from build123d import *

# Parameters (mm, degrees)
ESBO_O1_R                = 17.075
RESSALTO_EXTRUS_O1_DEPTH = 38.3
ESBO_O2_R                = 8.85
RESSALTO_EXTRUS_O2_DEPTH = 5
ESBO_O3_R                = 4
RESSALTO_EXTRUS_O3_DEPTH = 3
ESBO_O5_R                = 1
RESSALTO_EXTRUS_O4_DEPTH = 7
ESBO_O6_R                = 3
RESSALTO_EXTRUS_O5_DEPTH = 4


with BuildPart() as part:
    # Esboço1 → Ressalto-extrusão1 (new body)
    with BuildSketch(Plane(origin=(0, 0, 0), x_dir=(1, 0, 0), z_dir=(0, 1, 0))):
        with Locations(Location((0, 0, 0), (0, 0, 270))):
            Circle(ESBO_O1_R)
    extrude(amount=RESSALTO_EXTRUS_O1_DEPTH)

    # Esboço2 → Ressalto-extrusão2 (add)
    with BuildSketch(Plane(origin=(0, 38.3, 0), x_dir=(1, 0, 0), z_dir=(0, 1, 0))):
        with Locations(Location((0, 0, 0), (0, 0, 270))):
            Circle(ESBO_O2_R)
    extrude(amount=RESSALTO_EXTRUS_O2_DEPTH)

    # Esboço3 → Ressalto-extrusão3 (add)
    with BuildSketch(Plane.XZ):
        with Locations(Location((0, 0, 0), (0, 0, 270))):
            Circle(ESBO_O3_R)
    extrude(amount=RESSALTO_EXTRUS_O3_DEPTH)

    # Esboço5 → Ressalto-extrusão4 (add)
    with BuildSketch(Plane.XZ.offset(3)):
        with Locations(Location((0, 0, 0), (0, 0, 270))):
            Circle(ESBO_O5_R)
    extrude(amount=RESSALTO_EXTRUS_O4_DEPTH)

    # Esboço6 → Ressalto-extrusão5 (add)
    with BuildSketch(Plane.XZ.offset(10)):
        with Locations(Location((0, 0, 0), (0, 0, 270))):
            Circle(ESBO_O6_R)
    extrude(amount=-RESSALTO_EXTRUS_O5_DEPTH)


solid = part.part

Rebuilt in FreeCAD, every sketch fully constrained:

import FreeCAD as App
import Part
import Sketcher

V = App.Vector

doc = App.newDocument("Part")
body = doc.addObject("PartDesign::Body", "Body")

# Sketch on XZ plane
sketch1 = doc.addObject("Sketcher::SketchObject", "Sketch")
body.addObject(sketch1)
sketch1.AttachmentSupport = (doc.XZ_Plane, [""])
sketch1.MapMode = "FlatFace"
sketch1.addGeometry(Part.Circle(V(0, 0, 0), V(0, 0, 1), 17.075), False)
sketch1.addConstraint(Sketcher.Constraint("Coincident", 0, 3, -1, 1))
sketch1.addConstraint(Sketcher.Constraint("Diameter", 0, 34.15))
pad1 = doc.addObject("PartDesign::Pad", "Pad")
body.addObject(pad1)
pad1.Profile = sketch1
pad1.Length = 38.3
pad1.Reversed = True

# Sketch on XZ plane
sketch2 = doc.addObject("Sketcher::SketchObject", "Sketch001")
body.addObject(sketch2)
sketch2.AttachmentSupport = (doc.XZ_Plane, [""])
sketch2.MapMode = "FlatFace"
sketch2.AttachmentOffset = App.Placement(V(0, 0, -38.3), App.Rotation())
sketch2.addGeometry(Part.Circle(V(0, 0, 0), V(0, 0, 1), 8.85), False)
sketch2.addConstraint(Sketcher.Constraint("Coincident", 0, 3, -1, 1))
sketch2.addConstraint(Sketcher.Constraint("Diameter", 0, 17.7))
pad2 = doc.addObject("PartDesign::Pad", "Pad001")
body.addObject(pad2)
pad2.Profile = sketch2
pad2.Length = 5
pad2.Reversed = True

# Sketch on XZ plane
sketch3 = doc.addObject("Sketcher::SketchObject", "Sketch002")
body.addObject(sketch3)
sketch3.AttachmentSupport = (doc.XZ_Plane, [""])
sketch3.MapMode = "FlatFace"
sketch3.addGeometry(Part.Circle(V(0, 0, 0), V(0, 0, 1), 4), False)
sketch3.addConstraint(Sketcher.Constraint("Coincident", 0, 3, -1, 1))
sketch3.addConstraint(Sketcher.Constraint("Diameter", 0, 8.0))
pad3 = doc.addObject("PartDesign::Pad", "Pad002")
body.addObject(pad3)
pad3.Profile = sketch3
pad3.Length = 3

# Sketch on XZ plane
sketch4 = doc.addObject("Sketcher::SketchObject", "Sketch003")
body.addObject(sketch4)
sketch4.AttachmentSupport = (doc.XZ_Plane, [""])
sketch4.MapMode = "FlatFace"
sketch4.AttachmentOffset = App.Placement(V(0, 0, 3), App.Rotation())
sketch4.addGeometry(Part.Circle(V(0, 0, 0), V(0, 0, 1), 1), False)
sketch4.addConstraint(Sketcher.Constraint("Coincident", 0, 3, -1, 1))
sketch4.addConstraint(Sketcher.Constraint("Diameter", 0, 2.0))
pad4 = doc.addObject("PartDesign::Pad", "Pad003")
body.addObject(pad4)
pad4.Profile = sketch4
pad4.Length = 7

# Sketch on XZ plane
sketch5 = doc.addObject("Sketcher::SketchObject", "Sketch004")
body.addObject(sketch5)
sketch5.AttachmentSupport = (doc.XZ_Plane, [""])
sketch5.MapMode = "FlatFace"
sketch5.AttachmentOffset = App.Placement(V(0, 0, 10), App.Rotation())
sketch5.addGeometry(Part.Circle(V(0, 0, 0), V(0, 0, 1), 3), False)
sketch5.addConstraint(Sketcher.Constraint("Coincident", 0, 3, -1, 1))
sketch5.addConstraint(Sketcher.Constraint("Diameter", 0, 6.0))
pad5 = doc.addObject("PartDesign::Pad", "Pad004")
body.addObject(pad5)
pad5.Profile = sketch5
pad5.Length = 4
pad5.Reversed = True

doc.recompute()
